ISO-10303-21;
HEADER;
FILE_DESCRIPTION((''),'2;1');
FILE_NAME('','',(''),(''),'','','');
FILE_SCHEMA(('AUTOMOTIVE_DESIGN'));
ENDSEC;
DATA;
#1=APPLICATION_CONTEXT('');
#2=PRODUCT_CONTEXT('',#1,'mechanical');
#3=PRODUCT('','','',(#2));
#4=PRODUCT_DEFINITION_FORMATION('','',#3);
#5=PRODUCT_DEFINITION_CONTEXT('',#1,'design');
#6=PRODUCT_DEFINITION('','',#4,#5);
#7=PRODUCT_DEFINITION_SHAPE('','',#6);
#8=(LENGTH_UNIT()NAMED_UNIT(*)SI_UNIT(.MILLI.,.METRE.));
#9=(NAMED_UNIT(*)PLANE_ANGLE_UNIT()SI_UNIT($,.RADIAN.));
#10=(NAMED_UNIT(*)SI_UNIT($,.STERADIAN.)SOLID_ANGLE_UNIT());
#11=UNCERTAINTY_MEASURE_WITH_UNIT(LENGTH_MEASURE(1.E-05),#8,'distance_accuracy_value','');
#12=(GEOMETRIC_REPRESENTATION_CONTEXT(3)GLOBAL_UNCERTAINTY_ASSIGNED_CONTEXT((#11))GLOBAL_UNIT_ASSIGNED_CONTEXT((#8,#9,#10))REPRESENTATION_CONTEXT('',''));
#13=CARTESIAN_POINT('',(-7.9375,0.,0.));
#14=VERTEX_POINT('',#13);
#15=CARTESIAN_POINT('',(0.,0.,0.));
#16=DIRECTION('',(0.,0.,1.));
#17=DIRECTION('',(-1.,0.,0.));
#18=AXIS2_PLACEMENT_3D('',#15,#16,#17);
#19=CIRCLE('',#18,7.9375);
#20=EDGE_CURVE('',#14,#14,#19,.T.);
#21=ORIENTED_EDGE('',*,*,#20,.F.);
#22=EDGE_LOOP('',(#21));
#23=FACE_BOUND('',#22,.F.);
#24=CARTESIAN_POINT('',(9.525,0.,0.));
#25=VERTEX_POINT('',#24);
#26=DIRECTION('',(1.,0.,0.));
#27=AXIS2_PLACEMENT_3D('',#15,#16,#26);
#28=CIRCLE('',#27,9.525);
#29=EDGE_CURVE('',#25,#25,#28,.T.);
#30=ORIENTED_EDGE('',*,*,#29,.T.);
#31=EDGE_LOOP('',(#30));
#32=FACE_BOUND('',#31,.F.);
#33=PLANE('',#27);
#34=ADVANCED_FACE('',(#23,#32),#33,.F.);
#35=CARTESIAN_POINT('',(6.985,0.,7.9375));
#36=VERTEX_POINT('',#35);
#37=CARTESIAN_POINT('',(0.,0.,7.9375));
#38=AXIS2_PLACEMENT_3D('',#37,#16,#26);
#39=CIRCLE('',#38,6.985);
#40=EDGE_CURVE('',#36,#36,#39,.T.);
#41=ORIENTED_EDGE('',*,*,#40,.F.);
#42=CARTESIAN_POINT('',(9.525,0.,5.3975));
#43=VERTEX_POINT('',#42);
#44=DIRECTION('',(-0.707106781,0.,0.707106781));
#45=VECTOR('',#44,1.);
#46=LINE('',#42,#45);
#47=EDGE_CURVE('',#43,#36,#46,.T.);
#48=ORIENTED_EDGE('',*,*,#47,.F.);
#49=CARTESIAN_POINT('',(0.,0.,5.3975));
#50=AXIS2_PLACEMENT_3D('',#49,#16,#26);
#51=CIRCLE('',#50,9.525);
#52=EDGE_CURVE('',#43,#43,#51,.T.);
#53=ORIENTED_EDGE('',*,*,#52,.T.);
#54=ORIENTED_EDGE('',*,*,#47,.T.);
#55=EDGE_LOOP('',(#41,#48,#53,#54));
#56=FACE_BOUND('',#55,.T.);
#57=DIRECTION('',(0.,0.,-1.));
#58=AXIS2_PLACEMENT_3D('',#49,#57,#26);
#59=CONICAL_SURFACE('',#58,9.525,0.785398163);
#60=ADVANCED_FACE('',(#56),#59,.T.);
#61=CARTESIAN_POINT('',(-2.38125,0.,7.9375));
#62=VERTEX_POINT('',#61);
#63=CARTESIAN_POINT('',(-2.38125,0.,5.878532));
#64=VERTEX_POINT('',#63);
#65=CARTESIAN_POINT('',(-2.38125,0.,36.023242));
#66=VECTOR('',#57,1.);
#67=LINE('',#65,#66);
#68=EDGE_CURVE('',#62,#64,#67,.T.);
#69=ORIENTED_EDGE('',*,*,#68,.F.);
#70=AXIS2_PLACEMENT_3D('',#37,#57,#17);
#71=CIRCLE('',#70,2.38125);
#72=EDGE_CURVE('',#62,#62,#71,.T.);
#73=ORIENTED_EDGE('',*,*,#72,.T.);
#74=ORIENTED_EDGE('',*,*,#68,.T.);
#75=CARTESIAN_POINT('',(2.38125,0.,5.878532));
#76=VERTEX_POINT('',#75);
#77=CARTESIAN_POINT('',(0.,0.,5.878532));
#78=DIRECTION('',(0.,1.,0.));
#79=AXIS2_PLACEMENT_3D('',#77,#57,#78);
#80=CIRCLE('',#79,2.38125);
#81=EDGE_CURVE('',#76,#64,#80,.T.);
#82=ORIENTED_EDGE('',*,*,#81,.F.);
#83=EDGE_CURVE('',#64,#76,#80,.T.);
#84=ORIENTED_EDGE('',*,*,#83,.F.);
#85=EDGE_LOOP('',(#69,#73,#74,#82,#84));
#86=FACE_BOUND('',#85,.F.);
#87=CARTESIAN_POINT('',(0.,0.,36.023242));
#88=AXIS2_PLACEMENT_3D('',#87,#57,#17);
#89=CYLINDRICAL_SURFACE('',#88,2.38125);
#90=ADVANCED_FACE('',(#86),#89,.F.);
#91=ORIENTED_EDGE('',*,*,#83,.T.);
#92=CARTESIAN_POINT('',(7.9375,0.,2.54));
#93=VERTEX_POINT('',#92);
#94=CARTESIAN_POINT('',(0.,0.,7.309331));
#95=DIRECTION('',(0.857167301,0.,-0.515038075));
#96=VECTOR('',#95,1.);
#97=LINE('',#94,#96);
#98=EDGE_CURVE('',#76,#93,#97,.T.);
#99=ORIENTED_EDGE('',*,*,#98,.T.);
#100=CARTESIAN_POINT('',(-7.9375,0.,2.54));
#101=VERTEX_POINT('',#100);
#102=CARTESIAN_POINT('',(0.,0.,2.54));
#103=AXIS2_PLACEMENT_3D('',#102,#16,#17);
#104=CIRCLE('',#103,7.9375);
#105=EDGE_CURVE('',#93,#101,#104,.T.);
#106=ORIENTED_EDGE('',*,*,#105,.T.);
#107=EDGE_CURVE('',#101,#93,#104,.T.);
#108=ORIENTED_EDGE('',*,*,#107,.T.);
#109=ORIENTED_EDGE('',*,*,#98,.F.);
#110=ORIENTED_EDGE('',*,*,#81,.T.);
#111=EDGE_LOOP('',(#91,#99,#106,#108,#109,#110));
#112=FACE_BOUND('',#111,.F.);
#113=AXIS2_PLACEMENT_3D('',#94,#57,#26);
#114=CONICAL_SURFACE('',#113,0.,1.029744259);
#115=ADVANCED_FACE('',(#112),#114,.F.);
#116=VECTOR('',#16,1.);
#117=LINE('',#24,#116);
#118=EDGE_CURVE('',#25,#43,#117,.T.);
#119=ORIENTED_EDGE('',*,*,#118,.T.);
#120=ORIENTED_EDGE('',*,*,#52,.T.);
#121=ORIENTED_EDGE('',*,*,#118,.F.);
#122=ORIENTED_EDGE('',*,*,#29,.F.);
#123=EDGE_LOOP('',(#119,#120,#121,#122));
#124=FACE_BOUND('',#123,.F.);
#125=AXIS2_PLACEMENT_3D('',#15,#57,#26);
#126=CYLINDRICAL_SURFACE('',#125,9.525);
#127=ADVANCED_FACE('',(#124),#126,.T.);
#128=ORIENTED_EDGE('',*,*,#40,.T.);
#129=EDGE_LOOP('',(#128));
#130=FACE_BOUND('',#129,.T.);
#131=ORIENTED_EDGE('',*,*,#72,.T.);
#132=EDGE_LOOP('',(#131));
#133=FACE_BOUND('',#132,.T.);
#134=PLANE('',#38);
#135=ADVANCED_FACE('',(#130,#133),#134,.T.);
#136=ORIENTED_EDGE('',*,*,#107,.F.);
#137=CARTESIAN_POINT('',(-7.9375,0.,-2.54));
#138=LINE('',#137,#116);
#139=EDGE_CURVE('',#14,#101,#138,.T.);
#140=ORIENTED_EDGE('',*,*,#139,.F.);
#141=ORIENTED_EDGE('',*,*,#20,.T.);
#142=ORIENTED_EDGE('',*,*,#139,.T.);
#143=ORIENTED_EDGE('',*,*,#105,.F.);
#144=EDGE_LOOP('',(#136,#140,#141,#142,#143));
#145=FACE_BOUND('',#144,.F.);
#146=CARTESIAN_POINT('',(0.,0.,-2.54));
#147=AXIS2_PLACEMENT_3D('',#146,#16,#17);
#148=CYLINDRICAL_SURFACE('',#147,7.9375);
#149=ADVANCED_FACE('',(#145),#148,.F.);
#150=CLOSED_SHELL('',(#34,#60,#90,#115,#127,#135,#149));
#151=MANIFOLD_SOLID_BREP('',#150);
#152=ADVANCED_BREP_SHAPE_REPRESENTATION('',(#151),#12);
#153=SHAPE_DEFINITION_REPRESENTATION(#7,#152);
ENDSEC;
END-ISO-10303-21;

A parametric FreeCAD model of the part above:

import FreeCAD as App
import Part
import Sketcher
from FreeCAD import Vector
Q = App.Units.Quantity


def edges_at(feature, points):
    """Names of the edges that pass closest to the given points."""
    edges = feature.Shape.Edges
    near = lambda p: min(range(len(edges)), key=lambda i: edges[i].distToShape(Part.Vertex(*p))[0])
    return sorted({f"Edge{near(p) + 1}" for p in points})

doc = App.newDocument("Part")
body = doc.addObject("PartDesign::Body", "Body")

sketch1 = doc.addObject("Sketcher::SketchObject", "Sketch")
body.addObject(sketch1)
sketch1.AttachmentSupport = (doc.XY_Plane, [""])
sketch1.MapMode = "FlatFace"
sketch1.addGeometry(Part.Circle(Vector(0, 0, 0), Vector(0, 0, 1), 9.525), False)
sketch1.addConstraint([
    Sketcher.Constraint("Coincident", 0, 3, -1, 1),
    Sketcher.Constraint("Diameter", 0, Q("0.75 in")),
])
pad1 = doc.addObject("PartDesign::Pad", "Pad")
body.addObject(pad1)
pad1.Profile = sketch1
pad1.Length = Q("0.3125 in")
doc.recompute()

chamfer = doc.addObject("PartDesign::Chamfer", "Chamfer")
body.addObject(chamfer)
chamfer.Base = (pad1, edges_at(pad1, [(-9.525, 0, 7.938)]))
chamfer.ChamferType = "Two distances"
chamfer.Size = Q("0.1 in")
chamfer.Size2 = Q("0.1 in")

sketch2 = doc.addObject("Sketcher::SketchObject", "Sketch001")
body.addObject(sketch2)
sketch2.AttachmentSupport = (doc.XY_Plane, [""])
sketch2.MapMode = "FlatFace"
sketch2.AttachmentOffset = App.Placement(Vector(0, 0, 0.3125 * 25.4), App.Rotation())
sketch2.addGeometry(Part.Circle(Vector(0, 0, 0), Vector(0, 0, 1), 2.38125), False)
sketch2.addConstraint([
    Sketcher.Constraint("Coincident", 0, 3, -1, 1),
    Sketcher.Constraint("Diameter", 0, Q("0.1875 in")),
])
doc.recompute()
hole = doc.addObject("PartDesign::Hole", "Hole")
body.addObject(hole)
hole.Profile = sketch2
hole.ThreadType = "None"
hole.Diameter = Q("0.1875 in")
hole.DepthType = "ThroughAll"

sketch3 = doc.addObject("Sketcher::SketchObject", "Sketch002")
body.addObject(sketch3)
sketch3.AttachmentSupport = (doc.XY_Plane, [""])
sketch3.MapMode = "FlatFace"
sketch3.addGeometry(Part.Circle(Vector(0, 0, 0), Vector(0, 0, 1), 7.9375), False)
sketch3.addConstraint([
    Sketcher.Constraint("Coincident", 0, 3, -1, 1),
    Sketcher.Constraint("Diameter", 0, Q("0.625 in")),
])
doc.recompute()
hole2 = doc.addObject("PartDesign::Hole", "Hole001")
body.addObject(hole2)
hole2.Profile = sketch3
hole2.ThreadType = "None"
hole2.Diameter = Q("0.625 in")
hole2.DepthType = "Dimension"
hole2.Depth = Q("0.1 in")
hole2.DrillPoint = "Angled"
hole2.DrillPointAngle = 118
hole2.Reversed = True

doc.recompute()
